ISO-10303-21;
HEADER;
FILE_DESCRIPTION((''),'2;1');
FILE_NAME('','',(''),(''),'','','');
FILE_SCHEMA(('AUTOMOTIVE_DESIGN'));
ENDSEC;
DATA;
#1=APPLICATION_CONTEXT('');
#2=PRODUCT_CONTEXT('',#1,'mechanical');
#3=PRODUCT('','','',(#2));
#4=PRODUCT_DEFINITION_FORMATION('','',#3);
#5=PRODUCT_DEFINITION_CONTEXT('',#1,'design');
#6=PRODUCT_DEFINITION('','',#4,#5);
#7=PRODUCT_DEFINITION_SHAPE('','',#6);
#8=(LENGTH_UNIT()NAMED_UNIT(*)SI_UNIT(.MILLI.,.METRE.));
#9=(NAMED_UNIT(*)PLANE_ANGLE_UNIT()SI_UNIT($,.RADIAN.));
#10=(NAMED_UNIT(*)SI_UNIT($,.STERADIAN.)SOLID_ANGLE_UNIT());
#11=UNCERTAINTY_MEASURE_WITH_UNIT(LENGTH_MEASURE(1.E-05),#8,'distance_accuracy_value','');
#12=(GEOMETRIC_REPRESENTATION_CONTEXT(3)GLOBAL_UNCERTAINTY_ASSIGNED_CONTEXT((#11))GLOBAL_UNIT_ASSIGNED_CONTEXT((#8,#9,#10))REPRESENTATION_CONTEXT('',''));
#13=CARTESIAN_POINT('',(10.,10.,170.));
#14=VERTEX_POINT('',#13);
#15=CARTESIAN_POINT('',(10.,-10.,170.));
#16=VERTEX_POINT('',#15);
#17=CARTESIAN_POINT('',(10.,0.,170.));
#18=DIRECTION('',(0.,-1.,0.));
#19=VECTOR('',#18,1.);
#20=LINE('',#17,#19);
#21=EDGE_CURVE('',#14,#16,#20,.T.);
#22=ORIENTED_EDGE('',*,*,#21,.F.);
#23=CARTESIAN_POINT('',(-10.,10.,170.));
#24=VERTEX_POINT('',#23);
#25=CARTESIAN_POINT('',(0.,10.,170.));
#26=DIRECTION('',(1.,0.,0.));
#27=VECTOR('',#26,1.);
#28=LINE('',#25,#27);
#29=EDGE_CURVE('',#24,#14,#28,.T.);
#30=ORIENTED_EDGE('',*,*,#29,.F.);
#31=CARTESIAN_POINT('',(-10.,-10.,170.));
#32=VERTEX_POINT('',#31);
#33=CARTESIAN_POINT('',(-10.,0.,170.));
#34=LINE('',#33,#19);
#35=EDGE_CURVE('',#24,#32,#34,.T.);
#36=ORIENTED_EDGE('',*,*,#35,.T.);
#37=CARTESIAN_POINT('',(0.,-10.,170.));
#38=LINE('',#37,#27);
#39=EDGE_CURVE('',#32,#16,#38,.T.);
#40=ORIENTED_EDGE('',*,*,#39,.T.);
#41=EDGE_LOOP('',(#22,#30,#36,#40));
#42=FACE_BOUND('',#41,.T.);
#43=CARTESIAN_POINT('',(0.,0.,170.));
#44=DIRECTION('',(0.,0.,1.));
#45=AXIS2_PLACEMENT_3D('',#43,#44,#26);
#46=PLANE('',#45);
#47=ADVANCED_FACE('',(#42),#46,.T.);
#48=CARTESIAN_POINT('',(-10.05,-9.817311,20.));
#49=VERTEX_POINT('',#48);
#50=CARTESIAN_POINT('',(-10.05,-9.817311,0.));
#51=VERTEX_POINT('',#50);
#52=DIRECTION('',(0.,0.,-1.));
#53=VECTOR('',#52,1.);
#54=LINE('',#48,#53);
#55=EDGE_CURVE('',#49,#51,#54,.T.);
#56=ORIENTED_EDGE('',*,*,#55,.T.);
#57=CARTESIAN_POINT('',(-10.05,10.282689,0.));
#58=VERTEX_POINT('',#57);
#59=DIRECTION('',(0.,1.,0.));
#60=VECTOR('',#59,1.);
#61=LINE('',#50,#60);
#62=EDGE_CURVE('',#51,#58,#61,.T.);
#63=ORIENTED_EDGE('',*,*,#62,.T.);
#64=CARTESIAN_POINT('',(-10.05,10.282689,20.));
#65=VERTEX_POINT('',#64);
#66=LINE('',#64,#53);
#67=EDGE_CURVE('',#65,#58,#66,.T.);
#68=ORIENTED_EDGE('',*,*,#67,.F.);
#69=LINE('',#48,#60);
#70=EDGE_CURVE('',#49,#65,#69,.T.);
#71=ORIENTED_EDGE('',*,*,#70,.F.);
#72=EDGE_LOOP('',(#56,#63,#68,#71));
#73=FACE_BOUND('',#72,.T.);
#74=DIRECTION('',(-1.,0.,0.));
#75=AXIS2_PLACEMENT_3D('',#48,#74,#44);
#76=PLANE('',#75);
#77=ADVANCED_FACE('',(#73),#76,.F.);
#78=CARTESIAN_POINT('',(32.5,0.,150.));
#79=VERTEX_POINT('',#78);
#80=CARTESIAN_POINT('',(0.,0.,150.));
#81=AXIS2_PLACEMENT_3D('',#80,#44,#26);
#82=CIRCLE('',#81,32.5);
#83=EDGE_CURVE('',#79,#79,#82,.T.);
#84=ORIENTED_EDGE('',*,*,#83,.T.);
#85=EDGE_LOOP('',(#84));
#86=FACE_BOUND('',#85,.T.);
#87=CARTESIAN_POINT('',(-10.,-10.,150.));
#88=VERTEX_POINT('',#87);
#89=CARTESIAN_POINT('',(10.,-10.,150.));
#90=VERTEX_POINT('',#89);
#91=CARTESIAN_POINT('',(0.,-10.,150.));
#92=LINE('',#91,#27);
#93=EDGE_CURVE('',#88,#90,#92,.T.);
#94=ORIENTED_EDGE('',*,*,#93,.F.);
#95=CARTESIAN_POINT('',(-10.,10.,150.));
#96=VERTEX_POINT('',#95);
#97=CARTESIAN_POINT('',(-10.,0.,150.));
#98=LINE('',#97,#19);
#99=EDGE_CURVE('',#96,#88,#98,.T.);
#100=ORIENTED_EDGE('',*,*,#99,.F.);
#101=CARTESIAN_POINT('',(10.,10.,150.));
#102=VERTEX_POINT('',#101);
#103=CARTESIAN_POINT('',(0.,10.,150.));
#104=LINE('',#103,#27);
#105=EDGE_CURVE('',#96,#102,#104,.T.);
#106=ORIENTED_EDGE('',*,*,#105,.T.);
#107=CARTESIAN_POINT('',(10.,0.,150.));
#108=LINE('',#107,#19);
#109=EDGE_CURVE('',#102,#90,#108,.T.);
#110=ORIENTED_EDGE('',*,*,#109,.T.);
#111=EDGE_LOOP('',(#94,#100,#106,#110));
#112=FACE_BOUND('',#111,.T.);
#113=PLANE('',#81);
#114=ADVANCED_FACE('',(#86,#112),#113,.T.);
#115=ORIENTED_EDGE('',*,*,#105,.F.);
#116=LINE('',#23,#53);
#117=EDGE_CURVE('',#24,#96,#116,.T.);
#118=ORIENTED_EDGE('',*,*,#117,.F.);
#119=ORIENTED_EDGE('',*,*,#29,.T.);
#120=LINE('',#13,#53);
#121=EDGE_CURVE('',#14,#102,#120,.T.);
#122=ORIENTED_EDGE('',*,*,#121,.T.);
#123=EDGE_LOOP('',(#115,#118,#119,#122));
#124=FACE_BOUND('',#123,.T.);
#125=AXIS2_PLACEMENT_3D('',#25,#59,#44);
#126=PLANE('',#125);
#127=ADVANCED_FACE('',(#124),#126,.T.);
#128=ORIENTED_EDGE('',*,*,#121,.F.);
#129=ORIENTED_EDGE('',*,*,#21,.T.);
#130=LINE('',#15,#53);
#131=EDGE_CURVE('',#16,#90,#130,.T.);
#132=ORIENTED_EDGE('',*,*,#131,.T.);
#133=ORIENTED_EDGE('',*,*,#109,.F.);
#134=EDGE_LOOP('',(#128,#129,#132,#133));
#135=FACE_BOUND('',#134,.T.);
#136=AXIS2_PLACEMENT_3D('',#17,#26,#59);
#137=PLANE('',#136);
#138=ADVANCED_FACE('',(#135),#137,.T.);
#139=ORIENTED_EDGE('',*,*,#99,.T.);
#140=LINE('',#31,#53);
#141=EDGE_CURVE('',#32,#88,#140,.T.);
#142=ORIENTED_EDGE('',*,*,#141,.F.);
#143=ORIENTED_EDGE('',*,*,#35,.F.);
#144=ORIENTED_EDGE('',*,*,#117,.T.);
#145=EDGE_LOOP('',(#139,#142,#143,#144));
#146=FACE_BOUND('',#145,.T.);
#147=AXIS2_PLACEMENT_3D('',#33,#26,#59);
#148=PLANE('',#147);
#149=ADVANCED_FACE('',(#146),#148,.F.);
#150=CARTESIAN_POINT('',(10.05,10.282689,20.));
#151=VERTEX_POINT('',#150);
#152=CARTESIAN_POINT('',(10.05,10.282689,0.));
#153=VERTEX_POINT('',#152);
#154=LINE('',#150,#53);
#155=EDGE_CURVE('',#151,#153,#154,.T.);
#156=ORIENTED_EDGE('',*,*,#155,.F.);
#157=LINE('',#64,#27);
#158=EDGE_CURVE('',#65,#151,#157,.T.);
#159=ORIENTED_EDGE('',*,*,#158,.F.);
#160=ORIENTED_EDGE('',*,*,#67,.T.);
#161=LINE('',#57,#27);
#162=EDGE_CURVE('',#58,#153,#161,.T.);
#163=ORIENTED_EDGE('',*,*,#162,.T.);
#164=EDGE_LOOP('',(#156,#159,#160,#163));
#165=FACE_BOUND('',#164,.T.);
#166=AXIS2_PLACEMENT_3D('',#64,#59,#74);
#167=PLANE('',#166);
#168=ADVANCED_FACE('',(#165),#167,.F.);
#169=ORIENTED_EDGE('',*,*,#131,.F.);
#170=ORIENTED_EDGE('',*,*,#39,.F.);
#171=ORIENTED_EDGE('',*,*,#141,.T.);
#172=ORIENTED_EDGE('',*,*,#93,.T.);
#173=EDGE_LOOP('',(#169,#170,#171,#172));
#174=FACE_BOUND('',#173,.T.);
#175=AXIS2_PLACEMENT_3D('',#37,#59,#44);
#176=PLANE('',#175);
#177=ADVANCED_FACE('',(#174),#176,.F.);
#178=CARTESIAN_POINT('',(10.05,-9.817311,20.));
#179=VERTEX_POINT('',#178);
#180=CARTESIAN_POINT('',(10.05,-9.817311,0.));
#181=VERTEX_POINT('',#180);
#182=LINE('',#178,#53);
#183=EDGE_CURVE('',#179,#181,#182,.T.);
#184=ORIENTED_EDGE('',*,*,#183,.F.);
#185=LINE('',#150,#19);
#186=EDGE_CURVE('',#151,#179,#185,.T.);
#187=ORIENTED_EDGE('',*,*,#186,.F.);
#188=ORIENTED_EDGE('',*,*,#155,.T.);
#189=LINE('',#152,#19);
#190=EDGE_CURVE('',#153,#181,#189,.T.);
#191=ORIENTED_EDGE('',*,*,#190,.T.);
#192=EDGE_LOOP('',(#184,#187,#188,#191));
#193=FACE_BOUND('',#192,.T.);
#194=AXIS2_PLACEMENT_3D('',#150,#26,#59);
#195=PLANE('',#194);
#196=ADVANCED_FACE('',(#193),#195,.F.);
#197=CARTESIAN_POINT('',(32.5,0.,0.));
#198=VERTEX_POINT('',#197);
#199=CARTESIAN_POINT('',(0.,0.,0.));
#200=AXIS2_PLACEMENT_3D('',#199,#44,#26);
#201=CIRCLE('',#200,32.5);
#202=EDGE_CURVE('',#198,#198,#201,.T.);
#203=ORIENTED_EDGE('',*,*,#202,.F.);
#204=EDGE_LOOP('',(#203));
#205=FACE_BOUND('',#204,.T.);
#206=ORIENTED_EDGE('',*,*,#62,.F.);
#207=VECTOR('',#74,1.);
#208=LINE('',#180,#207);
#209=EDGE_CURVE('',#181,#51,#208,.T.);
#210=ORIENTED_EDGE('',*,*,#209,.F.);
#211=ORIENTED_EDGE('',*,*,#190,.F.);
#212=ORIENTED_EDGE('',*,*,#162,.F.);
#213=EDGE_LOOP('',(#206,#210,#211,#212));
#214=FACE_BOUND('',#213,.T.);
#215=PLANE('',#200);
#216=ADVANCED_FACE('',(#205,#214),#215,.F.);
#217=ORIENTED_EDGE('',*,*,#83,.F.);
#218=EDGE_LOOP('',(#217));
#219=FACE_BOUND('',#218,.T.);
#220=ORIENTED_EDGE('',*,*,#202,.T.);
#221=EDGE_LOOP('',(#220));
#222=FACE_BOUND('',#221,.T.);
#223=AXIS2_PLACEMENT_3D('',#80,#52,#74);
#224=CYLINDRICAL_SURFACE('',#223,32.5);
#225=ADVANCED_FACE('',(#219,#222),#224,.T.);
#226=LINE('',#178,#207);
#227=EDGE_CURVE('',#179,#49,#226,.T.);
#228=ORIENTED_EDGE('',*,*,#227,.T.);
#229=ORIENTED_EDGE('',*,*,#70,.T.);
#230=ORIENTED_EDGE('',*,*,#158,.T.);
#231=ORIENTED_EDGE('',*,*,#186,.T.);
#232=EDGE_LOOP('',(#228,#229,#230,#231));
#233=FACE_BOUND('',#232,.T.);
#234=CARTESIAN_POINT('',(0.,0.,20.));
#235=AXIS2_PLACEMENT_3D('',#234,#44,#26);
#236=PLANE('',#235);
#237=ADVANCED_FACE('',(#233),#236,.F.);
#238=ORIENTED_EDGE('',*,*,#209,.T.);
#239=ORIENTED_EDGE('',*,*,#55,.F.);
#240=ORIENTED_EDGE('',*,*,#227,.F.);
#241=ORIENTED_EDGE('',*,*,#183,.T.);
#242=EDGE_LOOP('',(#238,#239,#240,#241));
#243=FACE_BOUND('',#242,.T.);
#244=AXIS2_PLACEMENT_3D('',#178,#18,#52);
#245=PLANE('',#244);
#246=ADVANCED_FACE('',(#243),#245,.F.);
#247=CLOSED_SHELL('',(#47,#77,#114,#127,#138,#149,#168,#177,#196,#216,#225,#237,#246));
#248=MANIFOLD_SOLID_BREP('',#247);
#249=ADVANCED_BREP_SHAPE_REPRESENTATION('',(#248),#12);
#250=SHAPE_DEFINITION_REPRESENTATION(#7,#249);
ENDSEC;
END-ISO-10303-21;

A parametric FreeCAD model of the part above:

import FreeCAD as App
import Part
import Sketcher

V = App.Vector

doc = App.newDocument("Part")
body = doc.addObject("PartDesign::Body", "Body")

# Sketch on XY plane
sketch1 = body.newObject("Sketcher::SketchObject", "Sketch")
sketch1.AttachmentSupport = (doc.getObject("XY_Plane"), [""])
sketch1.MapMode = "FlatFace"
sketch1.addGeometry(Part.Circle(V(0, 0, 0), V(0, 0, 1), 32.5), False)
sketch1.addConstraint(Sketcher.Constraint("Coincident", 0, 3, -1, 1))
sketch1.addConstraint(Sketcher.Constraint("Diameter", 0, 65.0))
pad1 = body.newObject("PartDesign::Pad", "Pad")
pad1.Profile = sketch1
pad1.Length = 150

# Sketch on XY plane
sketch2 = body.newObject("Sketcher::SketchObject", "Sketch001")
sketch2.AttachmentSupport = (doc.getObject("XY_Plane"), [""])
sketch2.MapMode = "FlatFace"
sketch2.AttachmentOffset = App.Placement(V(0, 0, 150), App.Rotation())
sketch2.addGeometry(Part.LineSegment(V(-10, 10, 0), V(-10, -10, 0)), False)
sketch2.addGeometry(Part.LineSegment(V(-10, -10, 0), V(10, -10, 0)), False)
sketch2.addGeometry(Part.LineSegment(V(10, -10, 0), V(10, 10, 0)), False)
sketch2.addGeometry(Part.LineSegment(V(10, 10, 0), V(-10, 10, 0)), False)
sketch2.addConstraint(Sketcher.Constraint("Coincident", 0, 2, 1, 1))
sketch2.addConstraint(Sketcher.Constraint("Coincident", 1, 2, 2, 1))
sketch2.addConstraint(Sketcher.Constraint("Coincident", 2, 2, 3, 1))
sketch2.addConstraint(Sketcher.Constraint("Coincident", 3, 2, 0, 1))
sketch2.addConstraint(Sketcher.Constraint("Vertical", 0))
sketch2.addConstraint(Sketcher.Constraint("Horizontal", 1))
sketch2.addConstraint(Sketcher.Constraint("Vertical", 2))
sketch2.addConstraint(Sketcher.Constraint("Horizontal", 3))
sketch2.addConstraint(Sketcher.Constraint("Symmetric", 0, 2, 2, 2, -1, 1))
sketch2.addConstraint(Sketcher.Constraint("Equal", 3, 0))
sketch2.addConstraint(Sketcher.Constraint("DistanceX", 1, 1, 1, 2, 20.0))
pad2 = body.newObject("PartDesign::Pad", "Pad001")
pad2.Profile = sketch2
pad2.Length = 20

# Sketch on XY plane
sketch3 = body.newObject("Sketcher::SketchObject", "Sketch002")
sketch3.AttachmentSupport = (doc.getObject("XY_Plane"), [""])
sketch3.MapMode = "FlatFace"
sketch3.addGeometry(Part.LineSegment(V(10, 10.232689, 0), V(10, -9.767311, 0)), False)
sketch3.addGeometry(Part.LineSegment(V(10, -9.767311, 0), V(-10, -9.767311, 0)), False)
sketch3.addGeometry(Part.LineSegment(V(-10, -9.767311, 0), V(-10, 10.232689, 0)), False)
sketch3.addGeometry(Part.LineSegment(V(-10, 10.232689, 0), V(10, 10.232689, 0)), False)
sketch3.addConstraint(Sketcher.Constraint("Coincident", 0, 2, 1, 1))
sketch3.addConstraint(Sketcher.Constraint("Coincident", 1, 2, 2, 1))
sketch3.addConstraint(Sketcher.Constraint("Coincident", 2, 2, 3, 1))
sketch3.addConstraint(Sketcher.Constraint("Coincident", 3, 2, 0, 1))
sketch3.addConstraint(Sketcher.Constraint("Vertical", 0))
sketch3.addConstraint(Sketcher.Constraint("Horizontal", 1))
sketch3.addConstraint(Sketcher.Constraint("Vertical", 2))
sketch3.addConstraint(Sketcher.Constraint("Horizontal", 3))
sketch3.addConstraint(Sketcher.Constraint("Equal", 3, 0))
sketch3.addConstraint(Sketcher.Constraint("DistanceX", 1, 2, 1, 1, 20.0))
sketch3.addConstraint(Sketcher.Constraint("DistanceX", -1, 1, 0, 2, 10.0))
sketch3.addConstraint(Sketcher.Constraint("DistanceY", 0, 2, -1, 1, 9.767311))
pocket1 = body.newObject("PartDesign::Pocket", "Pocket")
pocket1.Profile = sketch3
pocket1.Length = 20
pocket1.Reversed = True

# Sketch on XY plane
sketch4 = body.newObject("Sketcher::SketchObject", "Sketch003")
sketch4.AttachmentSupport = (doc.getObject("XY_Plane"), [""])
sketch4.MapMode = "FlatFace"
sketch4.addGeometry(Part.LineSegment(V(10.05, 10.282689, 0), V(10.05, -9.817311, 0)), False)
sketch4.addGeometry(Part.LineSegment(V(10.05, -9.817311, 0), V(-10.05, -9.817311, 0)), False)
sketch4.addGeometry(Part.LineSegment(V(-10.05, -9.817311, 0), V(-10.05, 10.282689, 0)), False)
sketch4.addGeometry(Part.LineSegment(V(-10.05, 10.282689, 0), V(10.05, 10.282689, 0)), False)
sketch4.addConstraint(Sketcher.Constraint("Coincident", 0, 2, 1, 1))
sketch4.addConstraint(Sketcher.Constraint("Coincident", 1, 2, 2, 1))
sketch4.addConstraint(Sketcher.Constraint("Coincident", 2, 2, 3, 1))
sketch4.addConstraint(Sketcher.Constraint("Coincident", 3, 2, 0, 1))
sketch4.addConstraint(Sketcher.Constraint("Vertical", 0))
sketch4.addConstraint(Sketcher.Constraint("Horizontal", 1))
sketch4.addConstraint(Sketcher.Constraint("Vertical", 2))
sketch4.addConstraint(Sketcher.Constraint("Horizontal", 3))
sketch4.addConstraint(Sketcher.Constraint("Equal", 3, 0))
sketch4.addConstraint(Sketcher.Constraint("DistanceX", 1, 2, 1, 1, 20.1))
sketch4.addConstraint(Sketcher.Constraint("DistanceX", -1, 1, 0, 2, 10.05))
sketch4.addConstraint(Sketcher.Constraint("DistanceY", 0, 2, -1, 1, 9.817311))
pocket2 = body.newObject("PartDesign::Pocket", "Pocket001")
pocket2.Profile = sketch4
pocket2.Length = 20
pocket2.Reversed = True

doc.recompute()
